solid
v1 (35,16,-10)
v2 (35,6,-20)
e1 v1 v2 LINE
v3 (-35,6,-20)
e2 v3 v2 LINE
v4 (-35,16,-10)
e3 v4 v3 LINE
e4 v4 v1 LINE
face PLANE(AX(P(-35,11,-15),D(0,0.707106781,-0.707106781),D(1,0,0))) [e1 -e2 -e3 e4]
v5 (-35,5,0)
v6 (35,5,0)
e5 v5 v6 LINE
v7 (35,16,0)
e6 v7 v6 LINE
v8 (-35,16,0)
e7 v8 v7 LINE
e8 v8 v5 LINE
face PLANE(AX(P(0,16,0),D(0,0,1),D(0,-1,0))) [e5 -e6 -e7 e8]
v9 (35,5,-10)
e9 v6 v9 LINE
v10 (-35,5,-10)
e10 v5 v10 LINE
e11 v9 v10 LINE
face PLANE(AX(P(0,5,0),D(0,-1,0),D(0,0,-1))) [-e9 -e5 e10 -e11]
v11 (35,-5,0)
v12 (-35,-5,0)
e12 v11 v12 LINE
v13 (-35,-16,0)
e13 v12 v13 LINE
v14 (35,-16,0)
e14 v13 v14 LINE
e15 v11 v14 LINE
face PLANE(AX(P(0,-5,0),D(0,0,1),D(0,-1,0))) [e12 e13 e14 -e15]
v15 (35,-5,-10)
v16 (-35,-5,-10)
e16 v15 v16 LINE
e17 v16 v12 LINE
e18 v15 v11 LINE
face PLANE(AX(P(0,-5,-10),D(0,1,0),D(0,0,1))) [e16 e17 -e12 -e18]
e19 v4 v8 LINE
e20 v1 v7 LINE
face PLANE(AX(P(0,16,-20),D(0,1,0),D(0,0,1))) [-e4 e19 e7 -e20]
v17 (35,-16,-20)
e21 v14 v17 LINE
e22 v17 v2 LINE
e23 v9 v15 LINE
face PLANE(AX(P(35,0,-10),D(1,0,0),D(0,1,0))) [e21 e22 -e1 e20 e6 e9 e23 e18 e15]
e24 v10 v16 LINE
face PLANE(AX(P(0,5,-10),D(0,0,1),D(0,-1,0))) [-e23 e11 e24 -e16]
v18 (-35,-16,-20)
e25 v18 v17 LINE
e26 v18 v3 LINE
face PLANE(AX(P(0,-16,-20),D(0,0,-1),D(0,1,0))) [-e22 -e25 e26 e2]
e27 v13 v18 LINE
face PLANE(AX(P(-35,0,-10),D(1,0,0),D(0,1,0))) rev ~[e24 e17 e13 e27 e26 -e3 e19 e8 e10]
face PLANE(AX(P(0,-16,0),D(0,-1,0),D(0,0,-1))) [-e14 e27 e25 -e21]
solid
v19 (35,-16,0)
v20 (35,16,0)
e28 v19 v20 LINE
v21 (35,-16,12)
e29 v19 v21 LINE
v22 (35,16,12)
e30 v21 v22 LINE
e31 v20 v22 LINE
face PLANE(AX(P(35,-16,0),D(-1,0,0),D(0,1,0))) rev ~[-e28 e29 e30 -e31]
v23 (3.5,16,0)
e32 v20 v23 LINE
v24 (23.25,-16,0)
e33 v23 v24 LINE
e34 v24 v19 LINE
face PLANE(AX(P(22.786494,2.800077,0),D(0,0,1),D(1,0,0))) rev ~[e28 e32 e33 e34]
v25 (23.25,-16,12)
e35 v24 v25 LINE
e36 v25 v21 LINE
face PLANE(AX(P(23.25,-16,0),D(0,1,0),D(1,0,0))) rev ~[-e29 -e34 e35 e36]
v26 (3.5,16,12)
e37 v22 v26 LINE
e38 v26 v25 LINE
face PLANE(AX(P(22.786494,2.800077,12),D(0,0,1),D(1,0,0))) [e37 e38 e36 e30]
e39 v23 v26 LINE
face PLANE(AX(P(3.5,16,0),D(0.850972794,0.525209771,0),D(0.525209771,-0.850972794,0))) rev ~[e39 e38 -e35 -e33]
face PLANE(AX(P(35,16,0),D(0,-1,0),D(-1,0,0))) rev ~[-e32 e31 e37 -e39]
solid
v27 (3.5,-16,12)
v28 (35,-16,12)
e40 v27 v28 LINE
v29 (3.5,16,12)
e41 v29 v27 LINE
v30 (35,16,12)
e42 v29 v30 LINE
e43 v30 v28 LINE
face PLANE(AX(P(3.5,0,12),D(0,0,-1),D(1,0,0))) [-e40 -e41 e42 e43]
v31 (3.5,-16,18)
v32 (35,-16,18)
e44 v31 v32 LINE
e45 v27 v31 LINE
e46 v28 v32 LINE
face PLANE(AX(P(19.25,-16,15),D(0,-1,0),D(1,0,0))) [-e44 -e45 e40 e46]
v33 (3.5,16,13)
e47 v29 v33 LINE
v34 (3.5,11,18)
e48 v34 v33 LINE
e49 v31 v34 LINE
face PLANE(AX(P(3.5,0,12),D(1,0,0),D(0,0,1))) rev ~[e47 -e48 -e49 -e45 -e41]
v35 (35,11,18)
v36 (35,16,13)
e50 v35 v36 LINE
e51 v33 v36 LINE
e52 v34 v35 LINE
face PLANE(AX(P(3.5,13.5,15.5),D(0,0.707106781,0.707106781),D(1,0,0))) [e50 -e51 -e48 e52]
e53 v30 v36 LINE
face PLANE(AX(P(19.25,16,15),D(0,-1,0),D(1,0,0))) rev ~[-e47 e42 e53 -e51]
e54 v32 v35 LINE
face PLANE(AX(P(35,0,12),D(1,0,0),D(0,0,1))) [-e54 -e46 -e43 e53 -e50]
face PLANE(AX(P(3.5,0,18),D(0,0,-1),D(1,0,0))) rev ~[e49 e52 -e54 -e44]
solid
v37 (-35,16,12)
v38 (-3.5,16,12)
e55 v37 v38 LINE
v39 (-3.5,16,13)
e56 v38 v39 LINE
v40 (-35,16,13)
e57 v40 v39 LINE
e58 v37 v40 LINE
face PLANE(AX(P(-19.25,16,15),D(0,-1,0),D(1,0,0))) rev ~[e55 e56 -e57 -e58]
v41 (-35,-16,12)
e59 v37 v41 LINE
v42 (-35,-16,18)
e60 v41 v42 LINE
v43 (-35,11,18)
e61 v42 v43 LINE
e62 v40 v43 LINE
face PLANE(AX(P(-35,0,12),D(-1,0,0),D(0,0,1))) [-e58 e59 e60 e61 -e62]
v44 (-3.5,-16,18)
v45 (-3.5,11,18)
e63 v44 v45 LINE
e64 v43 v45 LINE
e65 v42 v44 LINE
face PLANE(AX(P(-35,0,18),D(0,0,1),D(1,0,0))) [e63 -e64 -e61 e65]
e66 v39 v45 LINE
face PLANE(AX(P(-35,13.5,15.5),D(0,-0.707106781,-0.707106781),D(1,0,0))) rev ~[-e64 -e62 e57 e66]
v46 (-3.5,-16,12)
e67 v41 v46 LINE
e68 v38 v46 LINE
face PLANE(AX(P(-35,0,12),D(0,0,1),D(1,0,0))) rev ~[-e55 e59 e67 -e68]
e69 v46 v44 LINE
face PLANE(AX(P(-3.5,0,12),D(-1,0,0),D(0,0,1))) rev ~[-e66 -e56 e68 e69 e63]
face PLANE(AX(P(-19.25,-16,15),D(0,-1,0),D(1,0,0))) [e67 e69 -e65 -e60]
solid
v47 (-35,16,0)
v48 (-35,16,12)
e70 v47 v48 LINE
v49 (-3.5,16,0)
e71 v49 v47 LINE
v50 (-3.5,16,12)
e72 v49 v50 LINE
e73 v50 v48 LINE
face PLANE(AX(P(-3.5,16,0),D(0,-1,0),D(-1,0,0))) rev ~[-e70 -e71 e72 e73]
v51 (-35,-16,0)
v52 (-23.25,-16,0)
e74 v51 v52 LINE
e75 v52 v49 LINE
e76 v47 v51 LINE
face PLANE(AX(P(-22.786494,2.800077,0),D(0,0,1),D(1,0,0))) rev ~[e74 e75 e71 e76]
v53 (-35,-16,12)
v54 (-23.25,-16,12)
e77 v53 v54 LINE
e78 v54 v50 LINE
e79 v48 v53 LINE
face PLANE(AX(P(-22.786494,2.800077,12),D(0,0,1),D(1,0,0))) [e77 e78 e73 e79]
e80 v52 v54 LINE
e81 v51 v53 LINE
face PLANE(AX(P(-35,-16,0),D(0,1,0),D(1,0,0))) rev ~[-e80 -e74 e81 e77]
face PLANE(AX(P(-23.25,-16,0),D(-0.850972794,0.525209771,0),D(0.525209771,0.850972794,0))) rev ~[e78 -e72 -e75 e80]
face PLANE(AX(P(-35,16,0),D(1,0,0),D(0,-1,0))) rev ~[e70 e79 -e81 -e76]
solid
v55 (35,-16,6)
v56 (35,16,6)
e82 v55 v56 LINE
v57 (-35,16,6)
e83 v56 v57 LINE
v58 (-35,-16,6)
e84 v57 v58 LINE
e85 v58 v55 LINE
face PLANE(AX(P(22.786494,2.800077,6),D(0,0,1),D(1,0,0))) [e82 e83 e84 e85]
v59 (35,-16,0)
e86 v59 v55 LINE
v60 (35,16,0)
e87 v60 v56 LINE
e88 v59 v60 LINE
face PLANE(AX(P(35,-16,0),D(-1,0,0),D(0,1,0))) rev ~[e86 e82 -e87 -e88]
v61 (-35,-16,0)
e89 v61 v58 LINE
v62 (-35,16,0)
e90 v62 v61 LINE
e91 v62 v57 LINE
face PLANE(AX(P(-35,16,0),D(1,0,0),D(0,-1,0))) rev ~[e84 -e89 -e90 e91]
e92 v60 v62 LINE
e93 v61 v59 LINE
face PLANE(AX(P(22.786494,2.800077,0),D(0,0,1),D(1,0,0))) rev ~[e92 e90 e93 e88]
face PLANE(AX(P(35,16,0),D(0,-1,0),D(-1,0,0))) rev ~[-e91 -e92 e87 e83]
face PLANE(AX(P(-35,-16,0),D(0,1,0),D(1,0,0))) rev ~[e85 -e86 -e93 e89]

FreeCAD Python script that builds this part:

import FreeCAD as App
import Part
import Sketcher
Q = App.Units.Quantity


def edges_at(feature, points):
    """Names of the edges that pass closest to the given points."""
    edges = feature.Shape.Edges
    near = lambda p: min(range(len(edges)), key=lambda i: edges[i].distToShape(Part.Vertex(*p))[0])
    return sorted({f"Edge{near(p) + 1}" for p in points})

doc = App.newDocument("Part")
body = doc.addObject("PartDesign::Body", "Body")
body.AllowCompound = True

# Sketch on XY plane
sketch1 = body.newObject("Sketcher::SketchObject", "Sketch")
sketch1.AttachmentSupport = (doc.getObject("XY_Plane"), [""])
sketch1.MapMode = "FlatFace"
sketch1.addGeometry(Part.LineSegment(App.Vector(-35, -16, 0), App.Vector(-23.25, -16, 0)), False)
sketch1.addGeometry(Part.LineSegment(App.Vector(-23.25, -16, 0), App.Vector(-3.5, 16, 0)), False)
sketch1.addGeometry(Part.LineSegment(App.Vector(-3.5, 16, 0), App.Vector(-35, 16, 0)), False)
sketch1.addGeometry(Part.LineSegment(App.Vector(-35, 16, 0), App.Vector(-35, -16, 0)), False)
sketch1.addGeometry(Part.LineSegment(App.Vector(23.25, -16, 0), App.Vector(35, -16, 0)), False)
sketch1.addGeometry(Part.LineSegment(App.Vector(35, -16, 0), App.Vector(35, 16, 0)), False)
sketch1.addGeometry(Part.LineSegment(App.Vector(35, 16, 0), App.Vector(3.5, 16, 0)), False)
sketch1.addGeometry(Part.LineSegment(App.Vector(3.5, 16, 0), App.Vector(23.25, -16, 0)), False)
sketch1.addConstraint(Sketcher.Constraint("Coincident", 0, 2, 1, 1))
sketch1.addConstraint(Sketcher.Constraint("Coincident", 1, 2, 2, 1))
sketch1.addConstraint(Sketcher.Constraint("Coincident", 2, 2, 3, 1))
sketch1.addConstraint(Sketcher.Constraint("Coincident", 3, 2, 0, 1))
sketch1.addConstraint(Sketcher.Constraint("Coincident", 4, 2, 5, 1))
sketch1.addConstraint(Sketcher.Constraint("Coincident", 5, 2, 6, 1))
sketch1.addConstraint(Sketcher.Constraint("Coincident", 6, 2, 7, 1))
sketch1.addConstraint(Sketcher.Constraint("Coincident", 7, 2, 4, 1))
sketch1.addConstraint(Sketcher.Constraint("Horizontal", 0))
sketch1.addConstraint(Sketcher.Constraint("Horizontal", 2))
sketch1.addConstraint(Sketcher.Constraint("Vertical", 3))
sketch1.addConstraint(Sketcher.Constraint("Horizontal", 4))
sketch1.addConstraint(Sketcher.Constraint("Vertical", 5))
sketch1.addConstraint(Sketcher.Constraint("Horizontal", 6))
sketch1.addConstraint(Sketcher.Constraint("Symmetric", 2, 2, 4, 2, -1, 1))
sketch1.addConstraint(Sketcher.Constraint("Symmetric", 1, 2, 6, 2, -2))
sketch1.addConstraint(Sketcher.Constraint("Symmetric", 0, 2, 7, 2, -2))
sketch1.addConstraint(Sketcher.Constraint("DistanceY", 3, 2, 3, 1, Q("32 mm")))
sketch1.addConstraint(Sketcher.Constraint("DistanceX", 2, 2, 2, 1, Q("31.5 mm")))
sketch1.addConstraint(Sketcher.Constraint("DistanceX", 2, 2, -1, 1, Q("35 mm")))
sketch1.addConstraint(Sketcher.Constraint("DistanceX", 0, 1, 0, 2, Q("11.75 mm")))
pad1 = body.newObject("PartDesign::Pad", "Pad")
pad1.Profile = sketch1
pad1.Length = 12
body2 = doc.addObject("PartDesign::Body", "Body001")

# Sketch on XY plane
sketch2 = body2.newObject("Sketcher::SketchObject", "Sketch001")
sketch2.AttachmentSupport = (doc.getObject("XY_Plane001"), [""])
sketch2.MapMode = "FlatFace"
sketch2.addGeometry(Part.LineSegment(App.Vector(35, -16, 0), App.Vector(35, 16, 0)), False)
sketch2.addGeometry(Part.LineSegment(App.Vector(35, 16, 0), App.Vector(-35, 16, 0)), False)
sketch2.addGeometry(Part.LineSegment(App.Vector(-35, 16, 0), App.Vector(-35, -16, 0)), False)
sketch2.addGeometry(Part.LineSegment(App.Vector(-35, -16, 0), App.Vector(35, -16, 0)), False)
sketch2.addConstraint(Sketcher.Constraint("Coincident", 0, 2, 1, 1))
sketch2.addConstraint(Sketcher.Constraint("Coincident", 1, 2, 2, 1))
sketch2.addConstraint(Sketcher.Constraint("Coincident", 2, 2, 3, 1))
sketch2.addConstraint(Sketcher.Constraint("Coincident", 3, 2, 0, 1))
sketch2.addConstraint(Sketcher.Constraint("Vertical", 0))
sketch2.addConstraint(Sketcher.Constraint("Horizontal", 1))
sketch2.addConstraint(Sketcher.Constraint("Vertical", 2))
sketch2.addConstraint(Sketcher.Constraint("Horizontal", 3))
sketch2.addConstraint(Sketcher.Constraint("Symmetric", 0, 2, 2, 2, -1, 1))
sketch2.addConstraint(Sketcher.Constraint("DistanceX", 1, 2, 1, 1, Q("70 mm")))
sketch2.addConstraint(Sketcher.Constraint("DistanceY", 0, 1, 0, 2, Q("32 mm")))
pad2 = body2.newObject("PartDesign::Pad", "Pad001")
pad2.Profile = sketch2
pad2.Length = 6
body3 = doc.addObject("PartDesign::Body", "Body002")
body3.AllowCompound = True

# Sketch on XZ plane
sketch3 = body3.newObject("Sketcher::SketchObject", "Sketch002")
sketch3.AttachmentSupport = (doc.getObject("XZ_Plane002"), [""])
sketch3.MapMode = "FlatFace"
sketch3.addGeometry(Part.LineSegment(App.Vector(-35, 18, 0), App.Vector(-35, 12, 0)), False)
sketch3.addGeometry(Part.LineSegment(App.Vector(-35, 12, 0), App.Vector(-3.5, 12, 0)), False)
sketch3.addGeometry(Part.LineSegment(App.Vector(-3.5, 12, 0), App.Vector(-3.5, 18, 0)), False)
sketch3.addGeometry(Part.LineSegment(App.Vector(-3.5, 18, 0), App.Vector(-35, 18, 0)), False)
sketch3.addGeometry(Part.LineSegment(App.Vector(3.5, 18, 0), App.Vector(3.5, 12, 0)), False)
sketch3.addGeometry(Part.LineSegment(App.Vector(3.5, 12, 0), App.Vector(35, 12, 0)), False)
sketch3.addGeometry(Part.LineSegment(App.Vector(35, 12, 0), App.Vector(35, 18, 0)), False)
sketch3.addGeometry(Part.LineSegment(App.Vector(35, 18, 0), App.Vector(3.5, 18, 0)), False)
sketch3.addConstraint(Sketcher.Constraint("Coincident", 0, 2, 1, 1))
sketch3.addConstraint(Sketcher.Constraint("Coincident", 1, 2, 2, 1))
sketch3.addConstraint(Sketcher.Constraint("Coincident", 2, 2, 3, 1))
sketch3.addConstraint(Sketcher.Constraint("Coincident", 3, 2, 0, 1))
sketch3.addConstraint(Sketcher.Constraint("Coincident", 4, 2, 5, 1))
sketch3.addConstraint(Sketcher.Constraint("Coincident", 5, 2, 6, 1))
sketch3.addConstraint(Sketcher.Constraint("Coincident", 6, 2, 7, 1))
sketch3.addConstraint(Sketcher.Constraint("Coincident", 7, 2, 4, 1))
sketch3.addConstraint(Sketcher.Constraint("Vertical", 0))
sketch3.addConstraint(Sketcher.Constraint("Horizontal", 1))
sketch3.addConstraint(Sketcher.Constraint("Vertical", 2))
sketch3.addConstraint(Sketcher.Constraint("Horizontal", 3))
sketch3.addConstraint(Sketcher.Constraint("Vertical", 4))
sketch3.addConstraint(Sketcher.Constraint("Horizontal", 5))
sketch3.addConstraint(Sketcher.Constraint("Vertical", 6))
sketch3.addConstraint(Sketcher.Constraint("Horizontal", 7))
sketch3.addConstraint(Sketcher.Constraint("Symmetric", 1, 2, 4, 2, -2))
sketch3.addConstraint(Sketcher.Constraint("Symmetric", 3, 2, 6, 2, -2))
sketch3.addConstraint(Sketcher.Constraint("DistanceY", 0, 2, 0, 1, Q("6 mm")))
sketch3.addConstraint(Sketcher.Constraint("DistanceX", 1, 1, 1, 2, Q("31.5 mm")))
sketch3.addConstraint(Sketcher.Constraint("DistanceX", 0, 2, -1, 1, Q("35 mm")))
sketch3.addConstraint(Sketcher.Constraint("DistanceY", -1, 1, 0, 2, Q("12 mm")))
pad3 = body3.newObject("PartDesign::Pad", "Pad002")
pad3.Profile = sketch3
pad3.Length = 32
pad3.Midplane = True
doc.recompute()

chamfer = body3.newObject("PartDesign::Chamfer", "Chamfer")
chamfer.Base = (pad3, edges_at(pad3, [(-19.25, 16, 18), (19.25, 16, 18)]))
chamfer.Size = 5
body4 = doc.addObject("PartDesign::Body", "Body003")

# Sketch on YZ plane
sketch4 = body4.newObject("Sketcher::SketchObject", "Sketch003")
sketch4.AttachmentSupport = (doc.getObject("YZ_Plane003"), [""])
sketch4.MapMode = "FlatFace"
sketch4.addGeometry(Part.LineSegment(App.Vector(-5, 0, 0), App.Vector(-16, 0, 0)), False)
sketch4.addGeometry(Part.LineSegment(App.Vector(-16, 0, 0), App.Vector(-16, -20, 0)), False)
sketch4.addGeometry(Part.LineSegment(App.Vector(-16, -20, 0), App.Vector(16, -20, 0)), False)
sketch4.addGeometry(Part.LineSegment(App.Vector(16, -20, 0), App.Vector(16, 0, 0)), False)
sketch4.addGeometry(Part.LineSegment(App.Vector(16, 0, 0), App.Vector(5, 0, 0)), False)
sketch4.addGeometry(Part.LineSegment(App.Vector(5, 0, 0), App.Vector(5, -10, 0)), False)
sketch4.addGeometry(Part.LineSegment(App.Vector(5, -10, 0), App.Vector(-5, -10, 0)), False)
sketch4.addGeometry(Part.LineSegment(App.Vector(-5, -10, 0), App.Vector(-5, 0, 0)), False)
sketch4.addConstraint(Sketcher.Constraint("Coincident", 0, 2, 1, 1))
sketch4.addConstraint(Sketcher.Constraint("Coincident", 1, 2, 2, 1))
sketch4.addConstraint(Sketcher.Constraint("Coincident", 2, 2, 3, 1))
sketch4.addConstraint(Sketcher.Constraint("Coincident", 3, 2, 4, 1))
sketch4.addConstraint(Sketcher.Constraint("Coincident", 4, 2, 5, 1))
sketch4.addConstraint(Sketcher.Constraint("Coincident", 5, 2, 6, 1))
sketch4.addConstraint(Sketcher.Constraint("Coincident", 6, 2, 7, 1))
sketch4.addConstraint(Sketcher.Constraint("Coincident", 7, 2, 0, 1))
sketch4.addConstraint(Sketcher.Constraint("Horizontal", 0))
sketch4.addConstraint(Sketcher.Constraint("Vertical", 1))
sketch4.addConstraint(Sketcher.Constraint("Horizontal", 2))
sketch4.addConstraint(Sketcher.Constraint("Vertical", 3))
sketch4.addConstraint(Sketcher.Constraint("Horizontal", 4))
sketch4.addConstraint(Sketcher.Constraint("Vertical", 5))
sketch4.addConstraint(Sketcher.Constraint("Horizontal", 6))
sketch4.addConstraint(Sketcher.Constraint("Vertical", 7))
sketch4.addConstraint(Sketcher.Constraint("Symmetric", 0, 2, 3, 2, -1, 1))
sketch4.addConstraint(Sketcher.Constraint("Symmetric", 4, 2, 7, 2, -2))
sketch4.addConstraint(Sketcher.Constraint("Equal", 6, 5))
sketch4.addConstraint(Sketcher.Constraint("DistanceX", 0, 2, 0, 1, Q("11 mm")))
sketch4.addConstraint(Sketcher.Constraint("DistanceX", 2, 1, 2, 2, Q("32 mm")))
sketch4.addConstraint(Sketcher.Constraint("DistanceY", 1, 2, 1, 1, Q("20 mm")))
pad4 = body4.newObject("PartDesign::Pad", "Pad003")
pad4.Profile = sketch4
pad4.Length = 70
pad4.Midplane = True
doc.recompute()

chamfer2 = body4.newObject("PartDesign::Chamfer", "Chamfer001")
chamfer2.Base = (pad4, edges_at(pad4, [(0, 16, -20)]))
chamfer2.Size = 10

doc.recompute()
